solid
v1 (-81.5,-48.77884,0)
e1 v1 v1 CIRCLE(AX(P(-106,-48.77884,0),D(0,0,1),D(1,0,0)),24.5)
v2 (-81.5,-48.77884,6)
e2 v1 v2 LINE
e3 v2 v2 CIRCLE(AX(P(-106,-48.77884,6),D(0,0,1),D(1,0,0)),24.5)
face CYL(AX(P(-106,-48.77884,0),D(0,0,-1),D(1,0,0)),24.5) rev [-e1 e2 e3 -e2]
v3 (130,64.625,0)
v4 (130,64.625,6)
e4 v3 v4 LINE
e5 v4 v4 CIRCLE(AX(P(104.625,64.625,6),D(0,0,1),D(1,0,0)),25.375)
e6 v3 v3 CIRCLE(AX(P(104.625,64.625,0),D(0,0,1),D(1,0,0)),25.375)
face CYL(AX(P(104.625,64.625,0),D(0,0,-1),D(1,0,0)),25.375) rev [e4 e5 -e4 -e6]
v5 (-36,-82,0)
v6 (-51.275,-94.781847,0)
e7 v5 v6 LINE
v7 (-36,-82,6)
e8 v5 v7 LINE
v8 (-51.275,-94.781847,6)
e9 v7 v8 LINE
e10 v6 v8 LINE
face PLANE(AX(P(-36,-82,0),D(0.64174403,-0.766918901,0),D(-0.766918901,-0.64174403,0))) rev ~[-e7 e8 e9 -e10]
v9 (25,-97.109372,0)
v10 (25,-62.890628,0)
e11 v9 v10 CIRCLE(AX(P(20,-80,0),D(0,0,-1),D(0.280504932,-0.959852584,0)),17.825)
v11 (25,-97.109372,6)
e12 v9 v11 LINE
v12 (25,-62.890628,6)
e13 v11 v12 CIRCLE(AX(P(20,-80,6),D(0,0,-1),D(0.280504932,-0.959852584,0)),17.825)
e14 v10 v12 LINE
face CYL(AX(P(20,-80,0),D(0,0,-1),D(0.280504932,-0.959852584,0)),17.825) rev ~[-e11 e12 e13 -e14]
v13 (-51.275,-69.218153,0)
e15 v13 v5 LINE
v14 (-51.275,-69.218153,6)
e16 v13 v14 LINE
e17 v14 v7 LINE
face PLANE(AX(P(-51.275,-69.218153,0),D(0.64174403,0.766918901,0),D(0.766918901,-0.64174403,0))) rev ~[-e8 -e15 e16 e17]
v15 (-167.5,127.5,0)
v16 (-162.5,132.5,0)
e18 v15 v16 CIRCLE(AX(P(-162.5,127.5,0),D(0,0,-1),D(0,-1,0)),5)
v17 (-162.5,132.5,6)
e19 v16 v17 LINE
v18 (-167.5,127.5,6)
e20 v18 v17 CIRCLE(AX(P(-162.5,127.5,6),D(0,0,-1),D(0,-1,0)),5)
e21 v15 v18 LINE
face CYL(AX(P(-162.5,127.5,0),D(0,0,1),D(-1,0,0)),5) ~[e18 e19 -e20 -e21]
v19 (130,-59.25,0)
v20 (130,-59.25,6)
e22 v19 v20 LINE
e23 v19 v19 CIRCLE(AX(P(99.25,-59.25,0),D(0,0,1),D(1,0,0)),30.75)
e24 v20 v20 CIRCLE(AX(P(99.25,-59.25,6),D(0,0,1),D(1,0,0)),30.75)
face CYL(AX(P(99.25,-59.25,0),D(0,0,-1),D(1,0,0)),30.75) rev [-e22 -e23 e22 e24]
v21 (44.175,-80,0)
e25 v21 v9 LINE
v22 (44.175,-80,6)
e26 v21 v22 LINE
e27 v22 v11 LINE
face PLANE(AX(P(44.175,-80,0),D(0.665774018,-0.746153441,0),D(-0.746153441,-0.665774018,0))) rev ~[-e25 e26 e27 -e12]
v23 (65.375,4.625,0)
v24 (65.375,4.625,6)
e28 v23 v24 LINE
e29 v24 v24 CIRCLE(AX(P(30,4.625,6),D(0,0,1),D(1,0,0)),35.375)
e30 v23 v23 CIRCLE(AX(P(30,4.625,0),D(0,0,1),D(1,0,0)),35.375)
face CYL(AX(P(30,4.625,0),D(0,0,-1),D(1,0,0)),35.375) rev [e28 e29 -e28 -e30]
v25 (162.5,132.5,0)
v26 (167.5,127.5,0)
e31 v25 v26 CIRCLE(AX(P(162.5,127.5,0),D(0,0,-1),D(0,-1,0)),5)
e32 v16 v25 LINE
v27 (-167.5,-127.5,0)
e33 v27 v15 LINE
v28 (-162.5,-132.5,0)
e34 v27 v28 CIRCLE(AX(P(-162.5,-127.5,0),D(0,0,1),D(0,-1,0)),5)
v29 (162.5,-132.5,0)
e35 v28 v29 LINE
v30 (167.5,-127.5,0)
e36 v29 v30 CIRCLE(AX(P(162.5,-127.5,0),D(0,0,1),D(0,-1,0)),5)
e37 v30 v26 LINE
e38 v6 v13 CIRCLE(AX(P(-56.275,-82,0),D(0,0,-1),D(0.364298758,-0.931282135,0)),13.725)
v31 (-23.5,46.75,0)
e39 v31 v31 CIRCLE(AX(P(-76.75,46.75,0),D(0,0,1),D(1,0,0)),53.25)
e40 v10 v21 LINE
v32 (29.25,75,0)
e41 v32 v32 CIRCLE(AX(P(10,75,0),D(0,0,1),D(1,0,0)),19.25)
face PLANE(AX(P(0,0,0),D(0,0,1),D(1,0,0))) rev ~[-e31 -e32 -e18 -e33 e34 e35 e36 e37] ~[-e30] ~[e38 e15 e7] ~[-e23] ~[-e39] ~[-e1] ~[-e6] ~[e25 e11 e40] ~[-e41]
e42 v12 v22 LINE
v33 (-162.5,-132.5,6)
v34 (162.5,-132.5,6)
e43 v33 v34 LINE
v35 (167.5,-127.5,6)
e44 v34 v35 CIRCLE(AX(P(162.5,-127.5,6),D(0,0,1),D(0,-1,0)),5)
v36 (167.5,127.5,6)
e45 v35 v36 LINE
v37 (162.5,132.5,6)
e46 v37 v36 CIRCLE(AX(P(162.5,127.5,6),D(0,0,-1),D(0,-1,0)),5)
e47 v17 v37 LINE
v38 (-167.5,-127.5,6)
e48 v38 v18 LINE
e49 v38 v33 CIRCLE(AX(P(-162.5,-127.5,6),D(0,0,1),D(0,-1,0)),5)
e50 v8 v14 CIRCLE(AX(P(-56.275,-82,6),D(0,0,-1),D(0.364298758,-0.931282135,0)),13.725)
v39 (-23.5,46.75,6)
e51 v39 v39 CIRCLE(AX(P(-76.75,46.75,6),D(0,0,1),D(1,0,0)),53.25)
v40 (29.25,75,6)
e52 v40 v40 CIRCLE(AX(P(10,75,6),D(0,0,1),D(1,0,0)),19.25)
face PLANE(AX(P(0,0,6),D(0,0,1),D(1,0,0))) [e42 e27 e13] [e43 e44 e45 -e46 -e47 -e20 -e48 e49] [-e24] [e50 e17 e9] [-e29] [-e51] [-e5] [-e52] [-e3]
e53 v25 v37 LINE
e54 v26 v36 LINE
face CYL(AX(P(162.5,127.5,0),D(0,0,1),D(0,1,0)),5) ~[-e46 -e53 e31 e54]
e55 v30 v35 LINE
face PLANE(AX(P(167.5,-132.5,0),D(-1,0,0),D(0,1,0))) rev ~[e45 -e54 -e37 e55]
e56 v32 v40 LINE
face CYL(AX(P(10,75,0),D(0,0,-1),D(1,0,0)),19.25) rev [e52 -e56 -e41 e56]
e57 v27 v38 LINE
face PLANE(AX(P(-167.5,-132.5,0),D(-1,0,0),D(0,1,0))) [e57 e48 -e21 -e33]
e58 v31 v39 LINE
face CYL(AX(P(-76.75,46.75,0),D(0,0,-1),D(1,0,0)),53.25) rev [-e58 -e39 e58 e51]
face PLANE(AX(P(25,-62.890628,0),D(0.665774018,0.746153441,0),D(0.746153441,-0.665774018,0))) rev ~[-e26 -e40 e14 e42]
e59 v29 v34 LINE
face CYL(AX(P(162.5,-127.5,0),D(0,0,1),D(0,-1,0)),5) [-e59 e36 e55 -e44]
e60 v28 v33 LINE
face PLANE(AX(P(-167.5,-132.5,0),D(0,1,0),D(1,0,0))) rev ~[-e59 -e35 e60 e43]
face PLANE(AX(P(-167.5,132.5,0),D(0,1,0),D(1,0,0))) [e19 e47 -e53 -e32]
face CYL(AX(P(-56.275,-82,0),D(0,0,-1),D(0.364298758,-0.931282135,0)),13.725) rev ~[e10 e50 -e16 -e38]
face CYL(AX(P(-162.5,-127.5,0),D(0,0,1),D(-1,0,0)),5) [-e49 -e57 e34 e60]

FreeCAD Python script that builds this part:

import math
import FreeCAD as App
import Part
import Sketcher


def edges_at(feature, points):
    """Names of the edges that pass closest to the given points."""
    edges = feature.Shape.Edges
    near = lambda p: min(range(len(edges)), key=lambda i: edges[i].distToShape(Part.Vertex(*p))[0])
    return sorted({f"Edge{near(p) + 1}" for p in points})

doc = App.newDocument("Part")
body = doc.addObject("PartDesign::Body", "Body")

# Sketch on XY plane
sketch1 = body.newObject("Sketcher::SketchObject", "Sketch")
sketch1.AttachmentSupport = (doc.getObject("XY_Plane"), [""])
sketch1.MapMode = "FlatFace"
sketch1.addGeometry([
    Part.LineSegment(App.Vector(-168, 132, 0), App.Vector(-168, -132, 0)),  # 0
    Part.LineSegment(App.Vector(-168, -132, 0), App.Vector(168, -132, 0)),  # 1
    Part.LineSegment(App.Vector(168, -132, 0), App.Vector(168, 132, 0)),  # 2
    Part.LineSegment(App.Vector(168, 132, 0), App.Vector(-168, 132, 0)),  # 3
    Part.Circle(App.Vector(-106, -49, 0), App.Vector(0, 0, 1), 24),  # 4
    Part.LineSegment(App.Vector(-36, -82, 0), App.Vector(-51, -95, 0)),  # 5
    Part.ArcOfCircle(Part.Circle(App.Vector(-56, -82, 0), App.Vector(0, 0, 1), 14), math.radians(69), math.radians(291)),  # 6
    Part.LineSegment(App.Vector(-51, -69, 0), App.Vector(-36, -82, 0)),  # 7
    Part.LineSegment(App.Vector(44, -80, 0), App.Vector(25, -97, 0)),  # 8
    Part.ArcOfCircle(Part.Circle(App.Vector(20, -80, 0), App.Vector(0, 0, 1), 18), math.radians(74), math.radians(286)),  # 9
    Part.LineSegment(App.Vector(25, -63, 0), App.Vector(44, -80, 0)),  # 10
    Part.Circle(App.Vector(99, -59, 0), App.Vector(0, 0, 1), 31),  # 11
    Part.Circle(App.Vector(-77, 47, 0), App.Vector(0, 0, 1), 53),  # 12
    Part.Circle(App.Vector(30, 5, 0), App.Vector(0, 0, 1), 35),  # 13
    Part.Circle(App.Vector(10, 75, 0), App.Vector(0, 0, 1), 19),  # 14
    Part.Circle(App.Vector(105, 65, 0), App.Vector(0, 0, 1), 25),  # 15
], False)
sketch1.addConstraint([
    Sketcher.Constraint("Coincident", 0, 2, 1, 1),
    Sketcher.Constraint("Coincident", 1, 2, 2, 1),
    Sketcher.Constraint("Coincident", 2, 2, 3, 1),
    Sketcher.Constraint("Coincident", 3, 2, 0, 1),
    Sketcher.Constraint("Coincident", 5, 2, 6, 2),
    Sketcher.Constraint("Coincident", 6, 1, 7, 1),
    Sketcher.Constraint("Coincident", 7, 2, 5, 1),
    Sketcher.Constraint("Coincident", 8, 2, 9, 2),
    Sketcher.Constraint("Coincident", 9, 1, 10, 1),
    Sketcher.Constraint("Coincident", 10, 2, 8, 1),
    Sketcher.Constraint("Vertical", 0),
    Sketcher.Constraint("Horizontal", 1),
    Sketcher.Constraint("Vertical", 2),
    Sketcher.Constraint("Horizontal", 3),
    Sketcher.Constraint("Symmetric", 0, 2, 2, 2, -1, 1),
    Sketcher.Constraint("Horizontal", 6, 3, 7, 2),
    Sketcher.Constraint("Horizontal", 9, 3, 10, 2),
    Sketcher.Constraint("Vertical", 5, 2, 6, 1),
    Sketcher.Constraint("Vertical", 8, 2, 9, 1),
    Sketcher.Constraint("Diameter", 4, 49.0),
    Sketcher.Constraint("Diameter", 11, 61.5),
    Sketcher.Constraint("Diameter", 12, 106.5),
    Sketcher.Constraint("Diameter", 14, 38.5),
    Sketcher.Constraint("Diameter", 13, 70.75),
    Sketcher.Constraint("Diameter", 15, 50.75),
    Sketcher.Constraint("DistanceX", 1, 1, 1, 2, 335.0),
    Sketcher.Constraint("DistanceY", 0, 2, 0, 1, 265.0),
    Sketcher.Constraint("DistanceX", 4, 3, -1, 1, 106.0),
    Sketcher.Constraint("DistanceY", 6, 3, -1, 1, 82.0),
    Sketcher.Constraint("DistanceX", -1, 1, 9, 3, 20.0),
    Sketcher.Constraint("DistanceY", 9, 3, -1, 1, 80.0),
    Sketcher.Constraint("DistanceX", -1, 1, 13, 3, 30.0),
    Sketcher.Constraint("DistanceX", -1, 1, 14, 3, 10.0),
    Sketcher.Constraint("DistanceY", -1, 1, 14, 3, 75.0),
    Sketcher.Constraint("DistanceX", 7, 2, -1, 1, 36.0),
    Sketcher.Constraint("DistanceX", -1, 1, 8, 2, 25.0),
    Sketcher.Constraint("Radius", 6, 13.725),
    Sketcher.Constraint("Radius", 9, 17.825),
    Sketcher.Constraint("DistanceX", 12, 3, 11, 3, 176.0),
    Sketcher.Constraint("DistanceY", 11, 3, 12, 3, 106.0),
    Sketcher.Constraint("DistanceY", 13, 3, 15, 3, 60.0),
    Sketcher.Constraint("DistanceX", 6, 3, 5, 2, 5.0),
    Sketcher.Constraint("DistanceX", -1, 1, 11, 3, 99.25),
    Sketcher.Constraint("DistanceY", 11, 3, -1, 1, 59.25),
    Sketcher.Constraint("DistanceX", 6, 3, -1, 1, 56.275),
    Sketcher.Constraint("DistanceY", -1, 1, 13, 3, 4.625),
    Sketcher.Constraint("DistanceX", -1, 1, 15, 3, 104.625),
    Sketcher.Constraint("DistanceX", -1, 1, 10, 2, 44.175),
    Sketcher.Constraint("DistanceY", 4, 3, -1, 1, 48.77884),
])
pad1 = body.newObject("PartDesign::Pad", "Pad")
pad1.Profile = sketch1
pad1.Length = 6
doc.recompute()

fillet = body.newObject("PartDesign::Fillet", "Fillet")
fillet.Base = (pad1, edges_at(pad1, [
    (-167.5, 132.5, 3),
    (167.5, 132.5, 3),
    (167.5, -132.5, 3),
    (-167.5, -132.5, 3),
]))
fillet.Radius = 5

doc.recompute()
